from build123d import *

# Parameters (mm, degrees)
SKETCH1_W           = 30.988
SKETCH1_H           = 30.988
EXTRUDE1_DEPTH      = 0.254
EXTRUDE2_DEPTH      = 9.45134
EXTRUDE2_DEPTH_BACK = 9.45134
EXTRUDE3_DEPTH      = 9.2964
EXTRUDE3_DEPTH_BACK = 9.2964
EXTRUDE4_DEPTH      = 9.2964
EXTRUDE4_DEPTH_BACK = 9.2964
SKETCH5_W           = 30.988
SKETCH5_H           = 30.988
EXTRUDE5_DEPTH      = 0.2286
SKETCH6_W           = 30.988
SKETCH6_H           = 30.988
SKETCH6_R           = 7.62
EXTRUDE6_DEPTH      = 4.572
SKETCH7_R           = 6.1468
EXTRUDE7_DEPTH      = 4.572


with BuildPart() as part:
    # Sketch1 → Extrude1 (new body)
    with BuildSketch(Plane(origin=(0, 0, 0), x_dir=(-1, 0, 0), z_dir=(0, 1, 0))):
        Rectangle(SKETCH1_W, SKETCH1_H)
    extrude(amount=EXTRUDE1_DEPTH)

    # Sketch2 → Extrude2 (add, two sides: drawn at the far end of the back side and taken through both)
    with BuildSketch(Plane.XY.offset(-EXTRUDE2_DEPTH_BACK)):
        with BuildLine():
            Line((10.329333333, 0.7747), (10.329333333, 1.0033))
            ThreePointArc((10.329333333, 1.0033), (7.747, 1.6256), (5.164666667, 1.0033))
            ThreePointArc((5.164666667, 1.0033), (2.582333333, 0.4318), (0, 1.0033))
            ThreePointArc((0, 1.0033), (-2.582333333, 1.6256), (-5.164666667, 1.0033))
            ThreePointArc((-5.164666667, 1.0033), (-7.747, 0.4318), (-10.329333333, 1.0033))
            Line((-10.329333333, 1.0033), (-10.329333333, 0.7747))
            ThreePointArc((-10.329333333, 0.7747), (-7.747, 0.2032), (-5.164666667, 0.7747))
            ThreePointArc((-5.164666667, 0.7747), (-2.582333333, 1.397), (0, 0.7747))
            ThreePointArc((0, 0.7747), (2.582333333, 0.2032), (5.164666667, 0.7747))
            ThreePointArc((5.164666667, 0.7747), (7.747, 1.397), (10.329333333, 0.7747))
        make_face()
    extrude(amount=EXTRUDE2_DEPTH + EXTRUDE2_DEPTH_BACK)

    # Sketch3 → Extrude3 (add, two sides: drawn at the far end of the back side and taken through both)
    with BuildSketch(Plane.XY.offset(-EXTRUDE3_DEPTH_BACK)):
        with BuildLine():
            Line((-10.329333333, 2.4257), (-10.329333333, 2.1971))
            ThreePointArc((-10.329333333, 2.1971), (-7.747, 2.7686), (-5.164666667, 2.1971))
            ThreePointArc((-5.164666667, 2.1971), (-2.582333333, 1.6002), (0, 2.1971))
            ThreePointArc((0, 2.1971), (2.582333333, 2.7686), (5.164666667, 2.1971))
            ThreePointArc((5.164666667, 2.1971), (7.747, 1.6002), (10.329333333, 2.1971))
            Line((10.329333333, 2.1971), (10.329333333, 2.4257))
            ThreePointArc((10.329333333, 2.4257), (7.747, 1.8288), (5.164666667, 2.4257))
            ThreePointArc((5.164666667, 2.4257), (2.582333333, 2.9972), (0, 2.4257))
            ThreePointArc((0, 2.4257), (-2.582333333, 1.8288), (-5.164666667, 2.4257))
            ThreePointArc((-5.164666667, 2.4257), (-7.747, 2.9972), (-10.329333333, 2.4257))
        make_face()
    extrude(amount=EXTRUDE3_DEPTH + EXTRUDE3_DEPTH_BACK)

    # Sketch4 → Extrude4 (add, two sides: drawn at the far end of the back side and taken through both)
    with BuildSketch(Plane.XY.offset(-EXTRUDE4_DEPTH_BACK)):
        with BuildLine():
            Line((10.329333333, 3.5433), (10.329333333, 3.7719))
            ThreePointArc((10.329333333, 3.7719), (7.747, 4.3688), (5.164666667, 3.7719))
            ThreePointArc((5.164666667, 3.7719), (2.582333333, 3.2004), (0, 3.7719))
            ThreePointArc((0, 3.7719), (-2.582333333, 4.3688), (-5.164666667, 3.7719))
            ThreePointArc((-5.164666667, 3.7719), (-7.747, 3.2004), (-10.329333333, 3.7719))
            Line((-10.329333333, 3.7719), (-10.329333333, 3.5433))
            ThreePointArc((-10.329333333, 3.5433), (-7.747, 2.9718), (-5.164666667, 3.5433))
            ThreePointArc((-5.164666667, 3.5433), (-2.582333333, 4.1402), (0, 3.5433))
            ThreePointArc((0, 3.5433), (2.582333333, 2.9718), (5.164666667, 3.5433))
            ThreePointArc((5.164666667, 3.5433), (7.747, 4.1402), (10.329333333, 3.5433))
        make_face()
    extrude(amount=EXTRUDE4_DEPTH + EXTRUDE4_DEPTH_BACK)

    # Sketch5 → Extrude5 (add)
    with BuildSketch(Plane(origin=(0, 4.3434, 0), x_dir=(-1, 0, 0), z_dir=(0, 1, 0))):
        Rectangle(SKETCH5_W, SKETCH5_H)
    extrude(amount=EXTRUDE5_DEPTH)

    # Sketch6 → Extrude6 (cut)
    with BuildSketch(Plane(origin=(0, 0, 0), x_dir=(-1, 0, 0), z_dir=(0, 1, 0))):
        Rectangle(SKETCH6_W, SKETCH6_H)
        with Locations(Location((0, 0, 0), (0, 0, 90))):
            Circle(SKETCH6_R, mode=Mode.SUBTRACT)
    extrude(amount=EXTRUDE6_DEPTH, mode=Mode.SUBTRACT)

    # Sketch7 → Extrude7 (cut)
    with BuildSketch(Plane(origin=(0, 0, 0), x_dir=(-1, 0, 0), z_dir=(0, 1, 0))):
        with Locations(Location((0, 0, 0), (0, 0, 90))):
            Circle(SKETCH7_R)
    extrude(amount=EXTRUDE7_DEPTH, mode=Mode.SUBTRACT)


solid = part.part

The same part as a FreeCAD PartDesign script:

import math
import FreeCAD as App
import Part
import Sketcher
Q = App.Units.Quantity


def add_polygon(sketch, points):
    """Adds a closed chain of lines whose ends are joined by coincident constraints."""
    first, n = sketch.GeometryCount, len(points)
    for a, b in zip(points, points[1:] + points[:1]):
        sketch.addGeometry(Part.LineSegment(App.Vector(*a, 0), App.Vector(*b, 0)), False)
    for i in range(n):
        sketch.addConstraint(Sketcher.Constraint("Coincident", first + i, 2, first + (i + 1) % n, 1))

doc = App.newDocument("Part")
body = doc.addObject("PartDesign::Body", "Body")

# Sketch on XZ plane
sketch1 = doc.addObject("Sketcher::SketchObject", "Sketch")
body.addObject(sketch1)
sketch1.AttachmentSupport = (doc.XZ_Plane, [""])
sketch1.MapMode = "FlatFace"
add_polygon(sketch1, [(15.494, 15.494), (15.494, -15.494), (-15.494, -15.494), (-15.494, 15.494)])  # lines 0-3
sketch1.addConstraint([
    Sketcher.Constraint("Vertical", 0),
    Sketcher.Constraint("Horizontal", 1),
    Sketcher.Constraint("Vertical", 2),
    Sketcher.Constraint("Horizontal", 3),
    Sketcher.Constraint("Symmetric", 0, 2, 2, 2, -1, 1),
    Sketcher.Constraint("Equal", 3, 0),
    Sketcher.Constraint("DistanceX", 1, 2, 1, 1, Q("1.22 in")),
])
pad1 = doc.addObject("PartDesign::Pad", "Pad")
body.addObject(pad1)
pad1.Profile = sketch1
pad1.Length = Q("0.01 in")
pad1.Reversed = True

# Sketch on XY plane
sketch2 = doc.addObject("Sketcher::SketchObject", "Sketch001")
body.addObject(sketch2)
sketch2.AttachmentSupport = (doc.XY_Plane, [""])
sketch2.MapMode = "FlatFace"
sketch2.addGeometry([
    Part.LineSegment(App.Vector(10.329333, 0.7747, 0), App.Vector(10.329333, 1.0033, 0)),  # 0
    Part.ArcOfCircle(Part.Circle(App.Vector(7.747, -4.043452, 0), App.Vector(0, 0, 1), 5.669052), math.radians(62.901983), math.radians(117.098017)),  # 1
    Part.ArcOfCircle(Part.Circle(App.Vector(2.582333, 6.55171, 0), App.Vector(0, 0, 1), 6.11991), math.radians(-114.958144), math.radians(-65.041856)),  # 2
    Part.ArcOfCircle(Part.Circle(App.Vector(-2.582333, -4.043452, 0), App.Vector(0, 0, 1), 5.669052), math.radians(62.901983), math.radians(117.098017)),  # 3
    Part.ArcOfCircle(Part.Circle(App.Vector(-7.747, 6.55171, 0), App.Vector(0, 0, 1), 6.11991), math.radians(-114.958144), math.radians(-65.041856)),  # 4
    Part.LineSegment(App.Vector(-10.329333, 1.0033, 0), App.Vector(-10.329333, 0.7747, 0)),  # 5
    Part.ArcOfCircle(Part.Circle(App.Vector(-7.747, 6.32311, 0), App.Vector(0, 0, 1), 6.11991), math.radians(-114.958144), math.radians(-65.041856)),  # 6
    Part.ArcOfCircle(Part.Circle(App.Vector(-2.582333, -4.272052, 0), App.Vector(0, 0, 1), 5.669052), math.radians(62.901983), math.radians(117.098017)),  # 7
    Part.ArcOfCircle(Part.Circle(App.Vector(2.582333, 6.32311, 0), App.Vector(0, 0, 1), 6.11991), math.radians(-114.958144), math.radians(-65.041856)),  # 8
    Part.ArcOfCircle(Part.Circle(App.Vector(7.747, -4.272052, 0), App.Vector(0, 0, 1), 5.669052), math.radians(62.901983), math.radians(117.098017)),  # 9
], False)
sketch2.addConstraint([
    Sketcher.Constraint("Coincident", 0, 2, 1, 1),
    Sketcher.Constraint("Coincident", 1, 2, 2, 2),
    Sketcher.Constraint("Coincident", 2, 1, 3, 1),
    Sketcher.Constraint("Coincident", 3, 2, 4, 2),
    Sketcher.Constraint("Coincident", 4, 1, 5, 1),
    Sketcher.Constraint("Coincident", 5, 2, 6, 1),
    Sketcher.Constraint("Coincident", 6, 2, 7, 2),
    Sketcher.Constraint("Coincident", 7, 1, 8, 1),
    Sketcher.Constraint("Coincident", 8, 2, 9, 2),
    Sketcher.Constraint("Coincident", 9, 1, 0, 1),
    Sketcher.Constraint("Vertical", 0),
    Sketcher.Constraint("Vertical", 5),
    Sketcher.Constraint("Equal", 1, 3),
    Sketcher.Constraint("Equal", 2, 4),
    Sketcher.Constraint("Equal", 4, 6),
    Sketcher.Constraint("Equal", 3, 7),
    Sketcher.Constraint("Equal", 6, 8),
    Sketcher.Constraint("Equal", 7, 9),
    Sketcher.Constraint("Symmetric", 1, 2, 3, 2, -2),
    Sketcher.Constraint("Symmetric", 0, 2, 4, 1, -2),
    Sketcher.Constraint("Symmetric", 6, 2, 8, 2, -2),
    Sketcher.Constraint("PointOnObject", 2, 1, -2),
    Sketcher.Constraint("PointOnObject", 7, 1, -2),
    Sketcher.Constraint("Horizontal", 1, 3, 3, 3),
    Sketcher.Constraint("Horizontal", 2, 3, 4, 3),
    Sketcher.Constraint("Horizontal", 6, 3, 8, 3),
    Sketcher.Constraint("Horizontal", 7, 3, 9, 3),
    Sketcher.Constraint("Horizontal", 0, 2, 1, 2),
    Sketcher.Constraint("Horizontal", 5, 2, 6, 2),
    Sketcher.Constraint("Horizontal", 6, 2, 7, 1),
    Sketcher.Constraint("DistanceY", 0, 1, 0, 2, Q("0.009 in")),
    Sketcher.Constraint("DistanceX", 4, 3, 1, 3, Q("0.61 in")),
    Sketcher.Constraint("Radius", 2, Q("6.11991 mm")),
    Sketcher.Constraint("DistanceY", -1, 1, 0, 2, Q("0.0395 in")),
    Sketcher.Constraint("Radius", 1, Q("5.669052 mm")),
])
pad2 = doc.addObject("PartDesign::Pad", "Pad001")
body.addObject(pad2)
pad2.Profile = sketch2
pad2.Type = "TwoLengths"
pad2.Length = Q("0.3721 in")
pad2.Length2 = Q("0.3721 in")

# Sketch on XY plane
sketch3 = doc.addObject("Sketcher::SketchObject", "Sketch002")
body.addObject(sketch3)
sketch3.AttachmentSupport = (doc.XY_Plane, [""])
sketch3.MapMode = "FlatFace"
sketch3.addGeometry([
    Part.LineSegment(App.Vector(-10.329333, 2.4257, 0), App.Vector(-10.329333, 2.1971, 0)),  # 0
    Part.ArcOfCircle(Part.Circle(App.Vector(-7.747, -3.35131, 0), App.Vector(0, 0, 1), 6.11991), math.radians(65.041856), math.radians(114.958144)),  # 1
    Part.ArcOfCircle(Part.Circle(App.Vector(-2.582333, 7.484548, 0), App.Vector(0, 0, 1), 5.884348), math.radians(-116.030389), math.radians(-63.969611)),  # 2
    Part.ArcOfCircle(Part.Circle(App.Vector(2.582333, -3.35131, 0), App.Vector(0, 0, 1), 6.11991), math.radians(65.041856), math.radians(114.958144)),  # 3
    Part.ArcOfCircle(Part.Circle(App.Vector(7.747, 7.484548, 0), App.Vector(0, 0, 1), 5.884348), math.radians(-116.030389), math.radians(-63.969611)),  # 4
    Part.LineSegment(App.Vector(10.329333, 2.1971, 0), App.Vector(10.329333, 2.4257, 0)),  # 5
    Part.ArcOfCircle(Part.Circle(App.Vector(7.747, 7.713148, 0), App.Vector(0, 0, 1), 5.884348), math.radians(-116.030389), math.radians(-63.969611)),  # 6
    Part.ArcOfCircle(Part.Circle(App.Vector(2.582333, -3.12271, 0), App.Vector(0, 0, 1), 6.11991), math.radians(65.041856), math.radians(114.958144)),  # 7
    Part.ArcOfCircle(Part.Circle(App.Vector(-2.582333, 7.713148, 0), App.Vector(0, 0, 1), 5.884348), math.radians(-116.030389), math.radians(-63.969611)),  # 8
    Part.ArcOfCircle(Part.Circle(App.Vector(-7.747, -3.12271, 0), App.Vector(0, 0, 1), 6.11991), math.radians(65.041856), math.radians(114.958144)),  # 9
], False)
sketch3.addConstraint([
    Sketcher.Constraint("Coincident", 0, 2, 1, 2),
    Sketcher.Constraint("Coincident", 1, 1, 2, 1),
    Sketcher.Constraint("Coincident", 2, 2, 3, 2),
    Sketcher.Constraint("Coincident", 3, 1, 4, 1),
    Sketcher.Constraint("Coincident", 4, 2, 5, 1),
    Sketcher.Constraint("Coincident", 5, 2, 6, 2),
    Sketcher.Constraint("Coincident", 6, 1, 7, 1),
    Sketcher.Constraint("Coincident", 7, 2, 8, 2),
    Sketcher.Constraint("Coincident", 8, 1, 9, 1),
    Sketcher.Constraint("Coincident", 9, 2, 0, 1),
    Sketcher.Constraint("Vertical", 0),
    Sketcher.Constraint("Vertical", 5),
    Sketcher.Constraint("Equal", 1, 3),
    Sketcher.Constraint("Equal", 2, 4),
    Sketcher.Constraint("Equal", 4, 6),
    Sketcher.Constraint("Equal", 3, 7),
    Sketcher.Constraint("Equal", 6, 8),
    Sketcher.Constraint("Equal", 7, 9),
    Sketcher.Constraint("Symmetric", 1, 1, 3, 1, -2),
    Sketcher.Constraint("Symmetric", 0, 2, 4, 2, -2),
    Sketcher.Constraint("Symmetric", 6, 1, 8, 1, -2),
    Sketcher.Constraint("PointOnObject", 2, 2, -2),
    Sketcher.Constraint("PointOnObject", 7, 2, -2),
    Sketcher.Constraint("Horizontal", 1, 3, 3, 3),
    Sketcher.Constraint("Horizontal", 2, 3, 4, 3),
    Sketcher.Constraint("Horizontal", 6, 3, 8, 3),
    Sketcher.Constraint("Horizontal", 7, 3, 9, 3),
    Sketcher.Constraint("Horizontal", 0, 2, 1, 1),
    Sketcher.Constraint("Horizontal", 5, 2, 6, 1),
    Sketcher.Constraint("Horizontal", 6, 1, 7, 2),
    Sketcher.Constraint("DistanceY", 0, 2, 0, 1, Q("0.009 in")),
    Sketcher.Constraint("DistanceX", 1, 3, 4, 3, Q("0.61 in")),
    Sketcher.Constraint("Radius", 1, Q("6.11991 mm")),
    Sketcher.Constraint("Radius", 2, Q("5.884348 mm")),
    Sketcher.Constraint("DistanceY", -1, 1, 0, 2, Q("0.0865 in")),
])
pad3 = doc.addObject("PartDesign::Pad", "Pad002")
body.addObject(pad3)
pad3.Profile = sketch3
pad3.Type = "TwoLengths"
pad3.Length = Q("0.366 in")
pad3.Length2 = Q("0.366 in")

# Sketch on XY plane
sketch4 = doc.addObject("Sketcher::SketchObject", "Sketch003")
body.addObject(sketch4)
sketch4.AttachmentSupport = (doc.XY_Plane, [""])
sketch4.MapMode = "FlatFace"
sketch4.addGeometry([
    Part.LineSegment(App.Vector(10.329333, 3.5433, 0), App.Vector(10.329333, 3.7719, 0)),  # 0
    Part.ArcOfCircle(Part.Circle(App.Vector(7.747, -1.515548, 0), App.Vector(0, 0, 1), 5.884348), math.radians(63.969611), math.radians(116.030389)),  # 1
    Part.ArcOfCircle(Part.Circle(App.Vector(2.582333, 9.32031, 0), App.Vector(0, 0, 1), 6.11991), math.radians(-114.958144), math.radians(-65.041856)),  # 2
    Part.ArcOfCircle(Part.Circle(App.Vector(-2.582333, -1.515548, 0), App.Vector(0, 0, 1), 5.884348), math.radians(63.969611), math.radians(116.030389)),  # 3
    Part.ArcOfCircle(Part.Circle(App.Vector(-7.747, 9.32031, 0), App.Vector(0, 0, 1), 6.11991), math.radians(-114.958144), math.radians(-65.041856)),  # 4
    Part.LineSegment(App.Vector(-10.329333, 3.7719, 0), App.Vector(-10.329333, 3.5433, 0)),  # 5
    Part.ArcOfCircle(Part.Circle(App.Vector(-7.747, 9.09171, 0), App.Vector(0, 0, 1), 6.11991), math.radians(-114.958144), math.radians(-65.041856)),  # 6
    Part.ArcOfCircle(Part.Circle(App.Vector(-2.582333, -1.744148, 0), App.Vector(0, 0, 1), 5.884348), math.radians(63.969611), math.radians(116.030389)),  # 7
    Part.ArcOfCircle(Part.Circle(App.Vector(2.582333, 9.09171, 0), App.Vector(0, 0, 1), 6.11991), math.radians(-114.958144), math.radians(-65.041856)),  # 8
    Part.ArcOfCircle(Part.Circle(App.Vector(7.747, -1.744148, 0), App.Vector(0, 0, 1), 5.884348), math.radians(63.969611), math.radians(116.030389)),  # 9
], False)
sketch4.addConstraint([
    Sketcher.Constraint("Coincident", 0, 2, 1, 1),
    Sketcher.Constraint("Coincident", 1, 2, 2, 2),
    Sketcher.Constraint("Coincident", 2, 1, 3, 1),
    Sketcher.Constraint("Coincident", 3, 2, 4, 2),
    Sketcher.Constraint("Coincident", 4, 1, 5, 1),
    Sketcher.Constraint("Coincident", 5, 2, 6, 1),
    Sketcher.Constraint("Coincident", 6, 2, 7, 2),
    Sketcher.Constraint("Coincident", 7, 1, 8, 1),
    Sketcher.Constraint("Coincident", 8, 2, 9, 2),
    Sketcher.Constraint("Coincident", 9, 1, 0, 1),
    Sketcher.Constraint("Vertical", 0),
    Sketcher.Constraint("Vertical", 5),
    Sketcher.Constraint("Equal", 1, 3),
    Sketcher.Constraint("Equal", 2, 4),
    Sketcher.Constraint("Equal", 4, 6),
    Sketcher.Constraint("Equal", 3, 7),
    Sketcher.Constraint("Equal", 6, 8),
    Sketcher.Constraint("Equal", 7, 9),
    Sketcher.Constraint("Symmetric", 1, 2, 3, 2, -2),
    Sketcher.Constraint("Symmetric", 0, 2, 4, 1, -2),
    Sketcher.Constraint("Symmetric", 6, 2, 8, 2, -2),
    Sketcher.Constraint("PointOnObject", 2, 1, -2),
    Sketcher.Constraint("PointOnObject", 7, 1, -2),
    Sketcher.Constraint("Horizontal", 1, 3, 3, 3),
    Sketcher.Constraint("Horizontal", 2, 3, 4, 3),
    Sketcher.Constraint("Horizontal", 6, 3, 8, 3),
    Sketcher.Constraint("Horizontal", 7, 3, 9, 3),
    Sketcher.Constraint("Horizontal", 0, 2, 1, 2),
    Sketcher.Constraint("Horizontal", 5, 2, 6, 2),
    Sketcher.Constraint("Horizontal", 6, 2, 7, 1),
    Sketcher.Constraint("DistanceY", 0, 1, 0, 2, Q("0.009 in")),
    Sketcher.Constraint("DistanceX", 4, 3, 1, 3, Q("0.61 in")),
    Sketcher.Constraint("Radius", 1, Q("5.884348 mm")),
    Sketcher.Constraint("Radius", 2, Q("6.11991 mm")),
    Sketcher.Constraint("DistanceY", -1, 1, 0, 2, Q("0.1485 in")),
])
pad4 = doc.addObject("PartDesign::Pad", "Pad003")
body.addObject(pad4)
pad4.Profile = sketch4
pad4.Type = "TwoLengths"
pad4.Length = Q("0.366 in")
pad4.Length2 = Q("0.366 in")

# Sketch on XZ plane
sketch5 = doc.addObject("Sketcher::SketchObject", "Sketch004")
body.addObject(sketch5)
sketch5.AttachmentSupport = (doc.XZ_Plane, [""])
sketch5.MapMode = "FlatFace"
sketch5.AttachmentOffset = App.Placement(App.Vector(0, 0, -0.171 * 25.4), App.Rotation())
add_polygon(sketch5, [(15.494, 15.494), (15.494, -15.494), (-15.494, -15.494), (-15.494, 15.494)])  # lines 0-3
sketch5.addConstraint([
    Sketcher.Constraint("Vertical", 0),
    Sketcher.Constraint("Horizontal", 1),
    Sketcher.Constraint("Vertical", 2),
    Sketcher.Constraint("Horizontal", 3),
    Sketcher.Constraint("Symmetric", 0, 2, 2, 2, -1, 1),
    Sketcher.Constraint("Equal", 3, 0),
    Sketcher.Constraint("DistanceX", 1, 2, 1, 1, Q("1.22 in")),
])
pad5 = doc.addObject("PartDesign::Pad", "Pad004")
body.addObject(pad5)
pad5.Profile = sketch5
pad5.Length = Q("0.009 in")
pad5.Reversed = True

# Sketch on XZ plane
sketch6 = doc.addObject("Sketcher::SketchObject", "Sketch005")
body.addObject(sketch6)
sketch6.AttachmentSupport = (doc.XZ_Plane, [""])
sketch6.MapMode = "FlatFace"
add_polygon(sketch6, [(15.494, 15.494), (15.494, -15.494), (-15.494, -15.494), (-15.494, 15.494)])  # lines 0-3
sketch6.addGeometry(Part.Circle(App.Vector(0, 0, 0), App.Vector(0, 0, 1), 7.62), False)  # 4
sketch6.addConstraint([
    Sketcher.Constraint("Vertical", 0),
    Sketcher.Constraint("Horizontal", 1),
    Sketcher.Constraint("Vertical", 2),
    Sketcher.Constraint("Horizontal", 3),
    Sketcher.Constraint("Coincident", 4, 3, -1, 1),
    Sketcher.Constraint("Symmetric", 0, 2, 2, 2, -1, 1),
    Sketcher.Constraint("Equal", 3, 0),
    Sketcher.Constraint("Diameter", 4, Q("0.6 in")),
    Sketcher.Constraint("DistanceX", 1, 2, 1, 1, Q("1.22 in")),
])
pocket1 = doc.addObject("PartDesign::Pocket", "Pocket")
body.addObject(pocket1)
pocket1.Profile = sketch6
pocket1.Length = Q("0.18 in")

# Sketch on XZ plane
sketch7 = doc.addObject("Sketcher::SketchObject", "Sketch006")
body.addObject(sketch7)
sketch7.AttachmentSupport = (doc.XZ_Plane, [""])
sketch7.MapMode = "FlatFace"
sketch7.addGeometry(Part.Circle(App.Vector(0, 0, 0), App.Vector(0, 0, 1), 6.1468), False)
sketch7.addConstraint([
    Sketcher.Constraint("Coincident", 0, 3, -1, 1),
    Sketcher.Constraint("Diameter", 0, Q("0.484 in")),
])
pocket2 = doc.addObject("PartDesign::Pocket", "Pocket001")
body.addObject(pocket2)
pocket2.Profile = sketch7
pocket2.Length = Q("0.18 in")

doc.recompute()
